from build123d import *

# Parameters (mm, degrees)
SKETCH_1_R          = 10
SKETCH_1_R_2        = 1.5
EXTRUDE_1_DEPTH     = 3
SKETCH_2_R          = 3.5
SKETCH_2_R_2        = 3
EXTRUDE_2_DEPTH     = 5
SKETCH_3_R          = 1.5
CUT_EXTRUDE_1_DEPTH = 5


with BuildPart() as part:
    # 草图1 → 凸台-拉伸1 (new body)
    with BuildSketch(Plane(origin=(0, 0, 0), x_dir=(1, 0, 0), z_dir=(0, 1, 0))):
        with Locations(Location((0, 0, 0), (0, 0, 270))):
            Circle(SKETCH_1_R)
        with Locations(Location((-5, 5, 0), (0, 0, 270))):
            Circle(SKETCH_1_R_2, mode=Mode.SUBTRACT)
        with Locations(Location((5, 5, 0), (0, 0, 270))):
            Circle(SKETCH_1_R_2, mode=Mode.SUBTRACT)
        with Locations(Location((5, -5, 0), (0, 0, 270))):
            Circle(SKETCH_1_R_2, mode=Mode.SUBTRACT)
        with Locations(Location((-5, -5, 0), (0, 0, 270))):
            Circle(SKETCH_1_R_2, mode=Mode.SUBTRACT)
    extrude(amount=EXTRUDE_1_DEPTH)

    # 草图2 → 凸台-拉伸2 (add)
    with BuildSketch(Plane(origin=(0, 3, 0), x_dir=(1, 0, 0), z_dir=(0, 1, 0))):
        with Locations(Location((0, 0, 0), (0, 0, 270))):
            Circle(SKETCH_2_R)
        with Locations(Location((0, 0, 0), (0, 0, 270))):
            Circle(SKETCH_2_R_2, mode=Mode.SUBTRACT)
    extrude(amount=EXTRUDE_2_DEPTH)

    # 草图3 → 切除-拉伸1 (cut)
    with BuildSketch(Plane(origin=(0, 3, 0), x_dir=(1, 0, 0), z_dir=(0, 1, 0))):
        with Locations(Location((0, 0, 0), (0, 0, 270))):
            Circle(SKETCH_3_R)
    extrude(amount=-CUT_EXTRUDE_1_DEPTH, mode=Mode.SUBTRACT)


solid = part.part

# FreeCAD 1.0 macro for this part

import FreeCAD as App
import Part
import Sketcher
from FreeCAD import Vector
Q = App.Units.Quantity

doc = App.newDocument("Part")
body = doc.addObject("PartDesign::Body", "Body")

# Sketch on XZ plane
sketch1 = body.newObject("Sketcher::SketchObject", "Sketch")
sketch1.AttachmentSupport = (doc.getObject("XZ_Plane"), [""])
sketch1.MapMode = "FlatFace"
sketch1.addGeometry(Part.Circle(Vector(0, 0, 0), Vector(0, 0, 1), 10), False)
sketch1.addGeometry(Part.Circle(Vector(-5, -5, 0), Vector(0, 0, 1), 1.5), False)
sketch1.addGeometry(Part.Circle(Vector(-5, 5, 0), Vector(0, 0, 1), 1.5), False)
sketch1.addGeometry(Part.Circle(Vector(5, -5, 0), Vector(0, 0, 1), 1.5), False)
sketch1.addGeometry(Part.Circle(Vector(5, 5, 0), Vector(0, 0, 1), 1.5), False)
sketch1.addConstraint(Sketcher.Constraint("Coincident", 0, 3, -1, 1))
sketch1.addConstraint(Sketcher.Constraint("Equal", 1, 2))
sketch1.addConstraint(Sketcher.Constraint("Equal", 2, 3))
sketch1.addConstraint(Sketcher.Constraint("Equal", 3, 4))
sketch1.addConstraint(Sketcher.Constraint("Symmetric", 2, 3, 3, 3, -1, 1))
sketch1.addConstraint(Sketcher.Constraint("Symmetric", 1, 3, 4, 3, -1, 1))
sketch1.addConstraint(Sketcher.Constraint("Symmetric", 1, 3, 3, 3, -2))
sketch1.addConstraint(Sketcher.Constraint("Diameter", 0, Q("20 mm")))
sketch1.addConstraint(Sketcher.Constraint("Diameter", 1, Q("3 mm")))
sketch1.addConstraint(Sketcher.Constraint("DistanceX", 1, 3, -1, 1, Q("5 mm")))
sketch1.addConstraint(Sketcher.Constraint("DistanceY", 1, 3, -1, 1, Q("5 mm")))
pad1 = body.newObject("PartDesign::Pad", "Pad")
pad1.Profile = sketch1
pad1.Length = 3
pad1.Reversed = True

# Sketch on XZ plane
sketch2 = body.newObject("Sketcher::SketchObject", "Sketch001")
sketch2.AttachmentSupport = (doc.getObject("XZ_Plane"), [""])
sketch2.MapMode = "FlatFace"
sketch2.AttachmentOffset = App.Placement(Vector(0, 0, -3), App.Rotation())
sketch2.addGeometry(Part.Circle(Vector(0, 0, 0), Vector(0, 0, 1), 3.5), False)
sketch2.addGeometry(Part.Circle(Vector(0, 0, 0), Vector(0, 0, 1), 3), False)
sketch2.addConstraint(Sketcher.Constraint("Coincident", 0, 3, -1, 1))
sketch2.addConstraint(Sketcher.Constraint("Coincident", 1, 3, -1, 1))
sketch2.addConstraint(Sketcher.Constraint("Diameter", 0, Q("7 mm")))
sketch2.addConstraint(Sketcher.Constraint("Diameter", 1, Q("6 mm")))
pad2 = body.newObject("PartDesign::Pad", "Pad001")
pad2.Profile = sketch2
pad2.Length = 5
pad2.Reversed = True

# Sketch on XZ plane
sketch3 = body.newObject("Sketcher::SketchObject", "Sketch002")
sketch3.AttachmentSupport = (doc.getObject("XZ_Plane"), [""])
sketch3.MapMode = "FlatFace"
sketch3.AttachmentOffset = App.Placement(Vector(0, 0, -3), App.Rotation())
sketch3.addGeometry(Part.Circle(Vector(0, 0, 0), Vector(0, 0, 1), 1.5), False)
sketch3.addConstraint(Sketcher.Constraint("Coincident", 0, 3, -1, 1))
sketch3.addConstraint(Sketcher.Constraint("Diameter", 0, Q("3 mm")))
pocket1 = body.newObject("PartDesign::Pocket", "Pocket")
pocket1.Profile = sketch3
pocket1.Length = 5
pocket1.Reversed = True

doc.recompute()
